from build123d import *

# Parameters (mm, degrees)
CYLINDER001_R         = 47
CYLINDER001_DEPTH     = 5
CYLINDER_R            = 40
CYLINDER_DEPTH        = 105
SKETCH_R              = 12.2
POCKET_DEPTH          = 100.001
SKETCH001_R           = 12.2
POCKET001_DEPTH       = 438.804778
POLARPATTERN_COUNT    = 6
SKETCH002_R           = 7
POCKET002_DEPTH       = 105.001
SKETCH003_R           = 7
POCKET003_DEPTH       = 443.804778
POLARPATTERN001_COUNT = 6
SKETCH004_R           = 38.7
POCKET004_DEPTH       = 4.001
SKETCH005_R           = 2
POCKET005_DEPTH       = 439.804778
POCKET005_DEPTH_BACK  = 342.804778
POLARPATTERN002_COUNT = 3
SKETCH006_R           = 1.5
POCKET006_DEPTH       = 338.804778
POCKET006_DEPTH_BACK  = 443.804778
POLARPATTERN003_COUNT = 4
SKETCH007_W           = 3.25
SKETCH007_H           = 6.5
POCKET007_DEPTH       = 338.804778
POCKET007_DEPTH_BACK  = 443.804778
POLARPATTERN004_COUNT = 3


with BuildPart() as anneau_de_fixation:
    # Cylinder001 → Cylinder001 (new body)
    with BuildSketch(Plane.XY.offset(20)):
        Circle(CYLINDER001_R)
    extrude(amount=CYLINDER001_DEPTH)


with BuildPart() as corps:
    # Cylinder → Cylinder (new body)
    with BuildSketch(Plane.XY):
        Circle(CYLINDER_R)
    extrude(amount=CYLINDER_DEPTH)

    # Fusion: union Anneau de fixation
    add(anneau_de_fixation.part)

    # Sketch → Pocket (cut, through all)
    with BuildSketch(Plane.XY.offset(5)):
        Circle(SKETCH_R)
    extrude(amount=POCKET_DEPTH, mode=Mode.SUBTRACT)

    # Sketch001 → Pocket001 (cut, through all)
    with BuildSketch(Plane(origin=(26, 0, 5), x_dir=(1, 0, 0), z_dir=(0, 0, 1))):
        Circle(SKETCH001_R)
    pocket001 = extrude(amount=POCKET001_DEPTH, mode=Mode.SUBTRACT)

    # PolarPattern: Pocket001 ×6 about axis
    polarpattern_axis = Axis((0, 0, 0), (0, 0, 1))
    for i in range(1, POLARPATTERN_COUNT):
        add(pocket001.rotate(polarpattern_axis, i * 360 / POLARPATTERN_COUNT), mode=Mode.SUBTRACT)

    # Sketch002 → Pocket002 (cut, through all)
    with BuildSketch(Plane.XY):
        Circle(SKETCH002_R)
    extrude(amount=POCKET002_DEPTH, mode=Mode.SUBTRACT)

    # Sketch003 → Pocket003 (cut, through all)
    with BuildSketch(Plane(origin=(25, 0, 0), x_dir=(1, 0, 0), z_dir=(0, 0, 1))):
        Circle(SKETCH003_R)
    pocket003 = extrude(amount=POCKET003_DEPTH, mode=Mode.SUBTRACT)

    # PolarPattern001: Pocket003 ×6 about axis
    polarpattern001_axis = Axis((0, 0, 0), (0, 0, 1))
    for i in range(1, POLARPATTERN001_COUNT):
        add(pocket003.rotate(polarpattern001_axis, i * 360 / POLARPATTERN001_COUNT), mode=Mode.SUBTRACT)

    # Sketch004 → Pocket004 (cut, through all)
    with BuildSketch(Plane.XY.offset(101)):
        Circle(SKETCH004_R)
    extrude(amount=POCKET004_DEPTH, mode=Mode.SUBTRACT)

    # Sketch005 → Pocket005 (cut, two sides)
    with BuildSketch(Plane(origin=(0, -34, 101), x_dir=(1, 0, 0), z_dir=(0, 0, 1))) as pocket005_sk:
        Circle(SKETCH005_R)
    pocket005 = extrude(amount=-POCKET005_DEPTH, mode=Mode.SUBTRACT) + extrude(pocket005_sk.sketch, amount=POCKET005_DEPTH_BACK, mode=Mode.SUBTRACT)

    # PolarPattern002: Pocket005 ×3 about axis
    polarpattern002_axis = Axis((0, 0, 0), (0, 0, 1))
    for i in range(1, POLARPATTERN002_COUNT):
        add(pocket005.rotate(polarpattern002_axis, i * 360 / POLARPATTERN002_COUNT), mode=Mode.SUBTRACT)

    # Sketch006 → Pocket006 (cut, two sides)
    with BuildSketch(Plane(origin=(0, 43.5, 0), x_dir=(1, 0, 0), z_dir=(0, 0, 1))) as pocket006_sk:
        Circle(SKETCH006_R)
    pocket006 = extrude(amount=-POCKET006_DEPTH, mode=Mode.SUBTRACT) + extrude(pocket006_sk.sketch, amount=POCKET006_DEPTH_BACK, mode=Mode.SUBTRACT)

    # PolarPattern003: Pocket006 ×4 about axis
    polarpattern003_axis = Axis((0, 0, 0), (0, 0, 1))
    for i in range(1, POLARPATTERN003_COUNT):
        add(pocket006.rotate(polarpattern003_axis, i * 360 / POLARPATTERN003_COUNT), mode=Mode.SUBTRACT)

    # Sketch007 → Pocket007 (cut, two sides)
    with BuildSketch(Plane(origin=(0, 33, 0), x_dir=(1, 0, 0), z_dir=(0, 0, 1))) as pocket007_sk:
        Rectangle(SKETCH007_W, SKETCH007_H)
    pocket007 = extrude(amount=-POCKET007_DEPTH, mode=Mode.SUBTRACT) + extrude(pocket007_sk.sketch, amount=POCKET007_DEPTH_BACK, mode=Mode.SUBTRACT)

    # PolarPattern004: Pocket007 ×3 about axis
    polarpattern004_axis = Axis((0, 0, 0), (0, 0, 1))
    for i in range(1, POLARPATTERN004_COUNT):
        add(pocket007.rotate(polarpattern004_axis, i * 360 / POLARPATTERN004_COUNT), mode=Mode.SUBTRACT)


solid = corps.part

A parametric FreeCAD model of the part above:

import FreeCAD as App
import Part
import Sketcher
from FreeCAD import Vector


def add_polygon(sketch, points):
    """Adds a closed chain of lines whose ends are joined by coincident constraints."""
    first, n = sketch.GeometryCount, len(points)
    for a, b in zip(points, points[1:] + points[:1]):
        sketch.addGeometry(Part.LineSegment(App.Vector(*a, 0), App.Vector(*b, 0)), False)
    for i in range(n):
        sketch.addConstraint(Sketcher.Constraint("Coincident", first + i, 2, first + (i + 1) % n, 1))

doc = App.newDocument("Part")
params = doc.addObject("Spreadsheet::Sheet", "Params")
for row, (alias, value) in enumerate([
    ("sketch1_diameter", "94 mm"),
    ("pad1_length", "5 mm"),
    ("sketch2_diameter", "80 mm"),
    ("pad2_length", "105 mm"),
    ("sketch3_diameter", "24.4 mm"),
    ("sketch4_diameter", "24.4 mm"),
    ("sketch5_diameter", "14 mm"),
    ("sketch6_diameter", "14 mm"),
    ("sketch7_diameter", "77.4 mm"),
    ("sketch8_diameter", "4 mm"),
    ("sketch9_diameter", "3 mm"),
    ("sketch10_height", "6.5 mm"),
    ("sketch10_width", "3.25 mm"),
], start=1):
    params.set(f"A{row}", alias)
    params.set(f"B{row}", "=" + value)
    params.setAlias(f"B{row}", alias)

body = doc.addObject("PartDesign::Body", "Body")

# Sketch on XY plane
sketch1 = doc.addObject("Sketcher::SketchObject", "Sketch")
body.addObject(sketch1)
sketch1.AttachmentSupport = (doc.XY_Plane, [""])
sketch1.MapMode = "FlatFace"
sketch1.AttachmentOffset = App.Placement(Vector(0, 0, 20), App.Rotation())
sketch1.addGeometry(Part.Circle(Vector(0, 0, 0), Vector(0, 0, 1), 47), False)
sketch1.addConstraint([
    Sketcher.Constraint("Coincident", 0, 3, -1, 1),
    Sketcher.Constraint("Diameter", 0, 94.0),
])
sketch1.setExpression("Constraints[1]", "Params.sketch1_diameter")
pad1 = doc.addObject("PartDesign::Pad", "Pad")
body.addObject(pad1)
pad1.Profile = sketch1
pad1.setExpression("Length", "Params.pad1_length")
body2 = doc.addObject("PartDesign::Body", "Body001")

# Sketch on XY plane
sketch2 = doc.addObject("Sketcher::SketchObject", "Sketch001")
body2.addObject(sketch2)
sketch2.AttachmentSupport = (doc.getObject("XY_Plane001"), [""])
sketch2.MapMode = "FlatFace"
sketch2.addGeometry(Part.Circle(Vector(0, 0, 0), Vector(0, 0, 1), 40), False)
sketch2.addConstraint([
    Sketcher.Constraint("Coincident", 0, 3, -1, 1),
    Sketcher.Constraint("Diameter", 0, 80.0),
])
sketch2.setExpression("Constraints[1]", "Params.sketch2_diameter")
pad2 = doc.addObject("PartDesign::Pad", "Pad001")
body2.addObject(pad2)
pad2.Profile = sketch2
pad2.setExpression("Length", "Params.pad2_length")
doc.recompute()

boolean = doc.addObject("PartDesign::Boolean", "Boolean")
body2.addObject(boolean)
boolean.Type = "Fuse"
boolean.addObjects([body])

# Sketch on XY plane
sketch3 = doc.addObject("Sketcher::SketchObject", "Sketch002")
body2.addObject(sketch3)
sketch3.AttachmentSupport = (doc.getObject("XY_Plane001"), [""])
sketch3.MapMode = "FlatFace"
sketch3.AttachmentOffset = App.Placement(Vector(0, 0, 5), App.Rotation())
sketch3.addGeometry(Part.Circle(Vector(0, 0, 0), Vector(0, 0, 1), 12), False)
sketch3.addConstraint([
    Sketcher.Constraint("Coincident", 0, 3, -1, 1),
    Sketcher.Constraint("Diameter", 0, 24.4),
])
sketch3.setExpression("Constraints[1]", "Params.sketch3_diameter")
pocket1 = doc.addObject("PartDesign::Pocket", "Pocket")
body2.addObject(pocket1)
pocket1.Profile = sketch3
pocket1.Type = "ThroughAll"
pocket1.Reversed = True

# Sketch on XY plane
sketch4 = doc.addObject("Sketcher::SketchObject", "Sketch003")
body2.addObject(sketch4)
sketch4.AttachmentSupport = (doc.getObject("XY_Plane001"), [""])
sketch4.MapMode = "FlatFace"
sketch4.AttachmentOffset = App.Placement(Vector(0, 0, 5), App.Rotation())
sketch4.addGeometry(Part.Circle(Vector(26, 0, 0), Vector(0, 0, 1), 12), False)
sketch4.addConstraint([
    Sketcher.Constraint("PointOnObject", 0, 3, -1),
    Sketcher.Constraint("Diameter", 0, 24.4),
    Sketcher.Constraint("DistanceX", -1, 1, 0, 3, 26.0),
])
sketch4.setExpression("Constraints[1]", "Params.sketch4_diameter")
pocket2 = doc.addObject("PartDesign::Pocket", "Pocket001")
body2.addObject(pocket2)
pocket2.Profile = sketch4
pocket2.Type = "ThroughAll"
pocket2.Reversed = True
doc.recompute()

polarpattern = doc.addObject("PartDesign::PolarPattern", "PolarPattern")
body2.addObject(polarpattern)
polarpattern.Originals = [pocket2]
polarpattern.Axis = (doc.getObject("Z_Axis001"), [""])
polarpattern.Angle = 360
polarpattern.Occurrences = 6
body2.Tip = polarpattern

# Sketch on XY plane
sketch5 = doc.addObject("Sketcher::SketchObject", "Sketch004")
body2.addObject(sketch5)
sketch5.AttachmentSupport = (doc.getObject("XY_Plane001"), [""])
sketch5.MapMode = "FlatFace"
sketch5.addGeometry(Part.Circle(Vector(0, 0, 0), Vector(0, 0, 1), 7), False)
sketch5.addConstraint([
    Sketcher.Constraint("Coincident", 0, 3, -1, 1),
    Sketcher.Constraint("Diameter", 0, 14.0),
])
sketch5.setExpression("Constraints[1]", "Params.sketch5_diameter")
pocket3 = doc.addObject("PartDesign::Pocket", "Pocket002")
body2.addObject(pocket3)
pocket3.Profile = sketch5
pocket3.Type = "ThroughAll"
pocket3.Reversed = True

# Sketch on XY plane
sketch6 = doc.addObject("Sketcher::SketchObject", "Sketch005")
body2.addObject(sketch6)
sketch6.AttachmentSupport = (doc.getObject("XY_Plane001"), [""])
sketch6.MapMode = "FlatFace"
sketch6.addGeometry(Part.Circle(Vector(25, 0, 0), Vector(0, 0, 1), 7), False)
sketch6.addConstraint([
    Sketcher.Constraint("PointOnObject", 0, 3, -1),
    Sketcher.Constraint("Diameter", 0, 14.0),
    Sketcher.Constraint("DistanceX", -1, 1, 0, 3, 25.0),
])
sketch6.setExpression("Constraints[1]", "Params.sketch6_diameter")
pocket4 = doc.addObject("PartDesign::Pocket", "Pocket003")
body2.addObject(pocket4)
pocket4.Profile = sketch6
pocket4.Type = "ThroughAll"
pocket4.Reversed = True
doc.recompute()

polarpattern2 = doc.addObject("PartDesign::PolarPattern", "PolarPattern001")
body2.addObject(polarpattern2)
polarpattern2.Originals = [pocket4]
polarpattern2.Axis = (doc.getObject("Z_Axis001"), [""])
polarpattern2.Angle = 360
polarpattern2.Occurrences = 6
body2.Tip = polarpattern2

# Sketch on XY plane
sketch7 = doc.addObject("Sketcher::SketchObject", "Sketch006")
body2.addObject(sketch7)
sketch7.AttachmentSupport = (doc.getObject("XY_Plane001"), [""])
sketch7.MapMode = "FlatFace"
sketch7.AttachmentOffset = App.Placement(Vector(0, 0, 101), App.Rotation())
sketch7.addGeometry(Part.Circle(Vector(0, 0, 0), Vector(0, 0, 1), 39), False)
sketch7.addConstraint([
    Sketcher.Constraint("Coincident", 0, 3, -1, 1),
    Sketcher.Constraint("Diameter", 0, 77.4),
])
sketch7.setExpression("Constraints[1]", "Params.sketch7_diameter")
pocket5 = doc.addObject("PartDesign::Pocket", "Pocket004")
body2.addObject(pocket5)
pocket5.Profile = sketch7
pocket5.Type = "ThroughAll"
pocket5.Reversed = True

# Sketch on XY plane
sketch8 = doc.addObject("Sketcher::SketchObject", "Sketch007")
body2.addObject(sketch8)
sketch8.AttachmentSupport = (doc.getObject("XY_Plane001"), [""])
sketch8.MapMode = "FlatFace"
sketch8.AttachmentOffset = App.Placement(Vector(0, 0, 101), App.Rotation())
sketch8.addGeometry(Part.Circle(Vector(0, -34, 0), Vector(0, 0, 1), 2), False)
sketch8.addConstraint([
    Sketcher.Constraint("PointOnObject", 0, 3, -2),
    Sketcher.Constraint("Diameter", 0, 4.0),
    Sketcher.Constraint("DistanceY", 0, 3, -1, 1, 34.0),
])
sketch8.setExpression("Constraints[1]", "Params.sketch8_diameter")
pocket6 = doc.addObject("PartDesign::Pocket", "Pocket005")
body2.addObject(pocket6)
pocket6.Profile = sketch8
pocket6.Type = "ThroughAll"
pocket6.Midplane = True
doc.recompute()

polarpattern3 = doc.addObject("PartDesign::PolarPattern", "PolarPattern002")
body2.addObject(polarpattern3)
polarpattern3.Originals = [pocket6]
polarpattern3.Axis = (doc.getObject("Z_Axis001"), [""])
polarpattern3.Angle = 360
polarpattern3.Occurrences = 3
body2.Tip = polarpattern3

# Sketch on XY plane
sketch9 = doc.addObject("Sketcher::SketchObject", "Sketch008")
body2.addObject(sketch9)
sketch9.AttachmentSupport = (doc.getObject("XY_Plane001"), [""])
sketch9.MapMode = "FlatFace"
sketch9.addGeometry(Part.Circle(Vector(0, 43.5, 0), Vector(0, 0, 1), 1.5), False)
sketch9.addConstraint([
    Sketcher.Constraint("PointOnObject", 0, 3, -2),
    Sketcher.Constraint("Diameter", 0, 3.0),
    Sketcher.Constraint("DistanceY", -1, 1, 0, 3, 43.5),
])
sketch9.setExpression("Constraints[1]", "Params.sketch9_diameter")
pocket7 = doc.addObject("PartDesign::Pocket", "Pocket006")
body2.addObject(pocket7)
pocket7.Profile = sketch9
pocket7.Type = "ThroughAll"
pocket7.Midplane = True
doc.recompute()

polarpattern4 = doc.addObject("PartDesign::PolarPattern", "PolarPattern003")
body2.addObject(polarpattern4)
polarpattern4.Originals = [pocket7]
polarpattern4.Axis = (doc.getObject("Z_Axis001"), [""])
polarpattern4.Angle = 360
polarpattern4.Occurrences = 4
body2.Tip = polarpattern4

# Sketch on XY plane
sketch10 = doc.addObject("Sketcher::SketchObject", "Sketch009")
body2.addObject(sketch10)
sketch10.AttachmentSupport = (doc.getObject("XY_Plane001"), [""])
sketch10.MapMode = "FlatFace"
add_polygon(sketch10, [(-1.6, 36.2), (-1.6, 29.8), (1.6, 29.8), (1.6, 36.2)])  # lines 0-3
sketch10.addConstraint([
    Sketcher.Constraint("Vertical", 0),
    Sketcher.Constraint("Horizontal", 1),
    Sketcher.Constraint("Vertical", 2),
    Sketcher.Constraint("Horizontal", 3),
    Sketcher.Constraint("DistanceY", 0, 2, 0, 1, 6.5),
    Sketcher.Constraint("DistanceX", 1, 1, 1, 2, 3.25),
    Sketcher.Constraint("DistanceY", -1, 1, 0, 2, 29.75),
    Sketcher.Constraint("DistanceX", 0, 2, -1, 1, 1.625),
])
sketch10.setExpression("Constraints[8]", "Params.sketch10_height")
sketch10.setExpression("Constraints[9]", "Params.sketch10_width")
pocket8 = doc.addObject("PartDesign::Pocket", "Pocket007")
body2.addObject(pocket8)
pocket8.Profile = sketch10
pocket8.Type = "ThroughAll"
pocket8.Midplane = True
doc.recompute()

polarpattern5 = doc.addObject("PartDesign::PolarPattern", "PolarPattern004")
body2.addObject(polarpattern5)
polarpattern5.Originals = [pocket8]
polarpattern5.Axis = (doc.getObject("Z_Axis001"), [""])
polarpattern5.Angle = 360
polarpattern5.Occurrences = 3
body2.Tip = polarpattern5

doc.recompute()
